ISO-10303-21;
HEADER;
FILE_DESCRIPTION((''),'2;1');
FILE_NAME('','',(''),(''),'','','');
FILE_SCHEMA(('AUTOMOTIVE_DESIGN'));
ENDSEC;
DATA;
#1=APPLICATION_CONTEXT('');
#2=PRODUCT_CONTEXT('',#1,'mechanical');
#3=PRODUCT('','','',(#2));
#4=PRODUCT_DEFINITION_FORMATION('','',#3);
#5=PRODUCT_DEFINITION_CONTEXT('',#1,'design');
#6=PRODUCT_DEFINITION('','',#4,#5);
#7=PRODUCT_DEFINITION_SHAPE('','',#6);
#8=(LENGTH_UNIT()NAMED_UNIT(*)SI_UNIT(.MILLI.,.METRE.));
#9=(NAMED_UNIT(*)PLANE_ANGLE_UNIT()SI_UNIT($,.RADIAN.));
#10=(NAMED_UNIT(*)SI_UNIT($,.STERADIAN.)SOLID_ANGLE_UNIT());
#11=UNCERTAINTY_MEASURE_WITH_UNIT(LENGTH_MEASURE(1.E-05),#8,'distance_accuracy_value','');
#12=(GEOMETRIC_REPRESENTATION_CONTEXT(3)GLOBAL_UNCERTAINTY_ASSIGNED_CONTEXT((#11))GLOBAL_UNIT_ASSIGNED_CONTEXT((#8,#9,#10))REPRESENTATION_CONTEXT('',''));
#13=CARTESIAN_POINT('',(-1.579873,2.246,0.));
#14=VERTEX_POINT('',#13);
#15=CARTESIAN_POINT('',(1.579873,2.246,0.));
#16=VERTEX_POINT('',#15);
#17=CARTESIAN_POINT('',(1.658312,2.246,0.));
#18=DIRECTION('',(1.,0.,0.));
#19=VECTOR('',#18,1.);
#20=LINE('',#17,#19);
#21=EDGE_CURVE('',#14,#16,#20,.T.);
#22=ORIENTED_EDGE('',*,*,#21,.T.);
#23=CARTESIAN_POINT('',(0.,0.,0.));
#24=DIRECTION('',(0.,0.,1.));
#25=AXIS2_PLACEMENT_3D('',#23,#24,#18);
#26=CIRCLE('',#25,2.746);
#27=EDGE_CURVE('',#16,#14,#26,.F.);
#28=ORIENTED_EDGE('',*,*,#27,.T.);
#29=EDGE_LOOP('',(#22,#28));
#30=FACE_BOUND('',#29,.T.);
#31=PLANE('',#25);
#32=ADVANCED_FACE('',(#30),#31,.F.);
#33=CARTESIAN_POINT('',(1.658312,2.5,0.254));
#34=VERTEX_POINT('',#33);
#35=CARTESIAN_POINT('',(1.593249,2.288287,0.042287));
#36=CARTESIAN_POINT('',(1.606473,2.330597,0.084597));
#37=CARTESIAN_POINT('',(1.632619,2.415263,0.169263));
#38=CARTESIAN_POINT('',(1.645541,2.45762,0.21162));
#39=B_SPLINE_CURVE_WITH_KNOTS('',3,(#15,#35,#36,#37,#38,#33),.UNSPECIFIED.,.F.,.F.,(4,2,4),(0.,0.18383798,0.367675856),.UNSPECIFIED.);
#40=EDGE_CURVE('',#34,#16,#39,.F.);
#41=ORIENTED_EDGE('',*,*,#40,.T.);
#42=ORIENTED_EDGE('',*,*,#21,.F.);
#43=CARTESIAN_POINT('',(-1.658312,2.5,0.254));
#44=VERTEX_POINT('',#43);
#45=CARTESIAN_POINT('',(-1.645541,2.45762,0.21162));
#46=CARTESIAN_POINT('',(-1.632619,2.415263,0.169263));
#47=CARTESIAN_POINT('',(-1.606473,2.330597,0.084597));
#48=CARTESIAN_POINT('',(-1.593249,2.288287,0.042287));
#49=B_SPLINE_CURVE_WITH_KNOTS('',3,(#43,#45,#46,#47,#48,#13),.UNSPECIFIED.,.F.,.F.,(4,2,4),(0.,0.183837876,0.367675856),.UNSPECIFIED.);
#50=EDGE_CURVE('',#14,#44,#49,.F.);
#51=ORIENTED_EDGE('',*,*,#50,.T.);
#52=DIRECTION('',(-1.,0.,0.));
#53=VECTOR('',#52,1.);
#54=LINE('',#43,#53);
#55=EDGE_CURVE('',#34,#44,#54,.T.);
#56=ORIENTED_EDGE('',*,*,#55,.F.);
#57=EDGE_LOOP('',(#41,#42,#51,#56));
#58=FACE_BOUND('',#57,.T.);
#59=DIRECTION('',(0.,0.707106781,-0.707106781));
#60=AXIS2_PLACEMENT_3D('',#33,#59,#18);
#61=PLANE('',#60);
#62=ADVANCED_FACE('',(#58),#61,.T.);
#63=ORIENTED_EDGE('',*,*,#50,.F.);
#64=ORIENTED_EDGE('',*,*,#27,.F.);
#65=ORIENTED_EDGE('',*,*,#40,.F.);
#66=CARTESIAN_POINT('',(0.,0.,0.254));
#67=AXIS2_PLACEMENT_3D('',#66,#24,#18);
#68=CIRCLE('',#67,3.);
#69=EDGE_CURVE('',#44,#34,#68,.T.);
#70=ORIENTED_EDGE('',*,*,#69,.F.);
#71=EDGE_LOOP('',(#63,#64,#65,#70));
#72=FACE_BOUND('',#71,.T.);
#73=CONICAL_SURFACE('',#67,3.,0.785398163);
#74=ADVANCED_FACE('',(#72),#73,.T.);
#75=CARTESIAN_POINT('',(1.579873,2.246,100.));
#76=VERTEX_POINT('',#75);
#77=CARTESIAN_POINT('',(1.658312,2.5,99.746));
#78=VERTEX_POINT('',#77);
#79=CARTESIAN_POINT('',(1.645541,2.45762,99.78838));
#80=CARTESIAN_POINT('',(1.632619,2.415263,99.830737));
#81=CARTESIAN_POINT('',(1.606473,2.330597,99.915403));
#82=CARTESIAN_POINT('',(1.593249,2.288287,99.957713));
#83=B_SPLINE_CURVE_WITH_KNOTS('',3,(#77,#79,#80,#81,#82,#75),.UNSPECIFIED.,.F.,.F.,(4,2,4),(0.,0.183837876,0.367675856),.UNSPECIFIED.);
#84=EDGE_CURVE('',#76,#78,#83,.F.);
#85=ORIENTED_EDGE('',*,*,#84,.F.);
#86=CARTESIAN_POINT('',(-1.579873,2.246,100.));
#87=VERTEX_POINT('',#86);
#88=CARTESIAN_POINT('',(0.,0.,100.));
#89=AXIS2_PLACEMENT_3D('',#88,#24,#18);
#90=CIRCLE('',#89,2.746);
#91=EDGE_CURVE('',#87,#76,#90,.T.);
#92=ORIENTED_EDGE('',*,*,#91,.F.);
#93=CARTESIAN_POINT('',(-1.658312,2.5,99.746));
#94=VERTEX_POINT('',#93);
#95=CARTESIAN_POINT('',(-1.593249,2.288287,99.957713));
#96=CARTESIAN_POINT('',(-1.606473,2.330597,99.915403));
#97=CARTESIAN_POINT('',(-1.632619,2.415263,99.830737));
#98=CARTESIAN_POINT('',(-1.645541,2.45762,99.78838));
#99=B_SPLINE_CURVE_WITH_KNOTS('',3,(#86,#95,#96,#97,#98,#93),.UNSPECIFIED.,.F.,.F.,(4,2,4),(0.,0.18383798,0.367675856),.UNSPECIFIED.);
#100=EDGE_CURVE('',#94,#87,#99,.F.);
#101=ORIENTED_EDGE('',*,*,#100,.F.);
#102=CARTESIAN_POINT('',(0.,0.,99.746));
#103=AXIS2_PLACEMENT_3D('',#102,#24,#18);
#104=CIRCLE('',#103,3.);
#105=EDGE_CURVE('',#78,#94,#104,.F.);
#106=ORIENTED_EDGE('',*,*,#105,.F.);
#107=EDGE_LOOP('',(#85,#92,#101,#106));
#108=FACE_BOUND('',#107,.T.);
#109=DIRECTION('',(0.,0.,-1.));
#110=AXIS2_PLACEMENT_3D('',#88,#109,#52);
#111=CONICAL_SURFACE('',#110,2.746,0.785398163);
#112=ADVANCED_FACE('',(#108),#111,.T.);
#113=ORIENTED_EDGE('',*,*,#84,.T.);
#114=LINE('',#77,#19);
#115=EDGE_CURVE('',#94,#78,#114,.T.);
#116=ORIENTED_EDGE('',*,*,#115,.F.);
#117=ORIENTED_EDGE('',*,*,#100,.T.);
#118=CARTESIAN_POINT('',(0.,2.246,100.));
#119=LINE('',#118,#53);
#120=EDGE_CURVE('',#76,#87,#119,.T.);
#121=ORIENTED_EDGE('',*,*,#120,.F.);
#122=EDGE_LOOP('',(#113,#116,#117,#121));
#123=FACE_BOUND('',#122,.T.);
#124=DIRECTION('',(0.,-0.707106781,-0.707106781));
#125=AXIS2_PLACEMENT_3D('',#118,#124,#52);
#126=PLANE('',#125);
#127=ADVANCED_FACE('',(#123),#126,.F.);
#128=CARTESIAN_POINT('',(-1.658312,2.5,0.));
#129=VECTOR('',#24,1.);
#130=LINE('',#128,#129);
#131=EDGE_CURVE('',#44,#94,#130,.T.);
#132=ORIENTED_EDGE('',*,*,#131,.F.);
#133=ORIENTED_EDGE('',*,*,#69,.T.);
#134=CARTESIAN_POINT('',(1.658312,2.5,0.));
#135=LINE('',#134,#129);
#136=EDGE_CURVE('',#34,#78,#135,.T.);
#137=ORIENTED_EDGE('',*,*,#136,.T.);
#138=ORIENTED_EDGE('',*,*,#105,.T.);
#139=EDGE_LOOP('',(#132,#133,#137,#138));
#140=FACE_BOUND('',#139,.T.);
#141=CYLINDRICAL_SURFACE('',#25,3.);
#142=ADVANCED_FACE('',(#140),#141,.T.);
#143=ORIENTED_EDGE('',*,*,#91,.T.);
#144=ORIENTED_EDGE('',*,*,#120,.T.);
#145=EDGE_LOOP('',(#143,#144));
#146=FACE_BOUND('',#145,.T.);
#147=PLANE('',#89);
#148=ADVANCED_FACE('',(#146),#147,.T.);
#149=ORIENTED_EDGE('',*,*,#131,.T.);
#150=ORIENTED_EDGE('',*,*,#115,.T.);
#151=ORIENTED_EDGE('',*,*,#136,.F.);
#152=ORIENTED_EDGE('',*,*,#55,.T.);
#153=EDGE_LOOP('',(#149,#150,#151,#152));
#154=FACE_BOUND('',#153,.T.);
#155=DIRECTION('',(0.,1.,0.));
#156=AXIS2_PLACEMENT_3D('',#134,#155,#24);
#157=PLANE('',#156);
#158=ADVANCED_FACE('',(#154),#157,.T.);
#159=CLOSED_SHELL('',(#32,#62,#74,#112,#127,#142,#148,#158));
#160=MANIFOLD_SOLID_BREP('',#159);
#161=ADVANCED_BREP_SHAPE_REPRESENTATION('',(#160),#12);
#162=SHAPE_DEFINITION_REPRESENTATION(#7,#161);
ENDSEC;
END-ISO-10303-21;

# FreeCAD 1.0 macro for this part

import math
import FreeCAD as App
import Part
import Sketcher

V = App.Vector
Q = App.Units.Quantity


def edges_at(feature, points):
    """Names of the edges that pass closest to the given points."""
    edges = feature.Shape.Edges
    near = lambda p: min(range(len(edges)), key=lambda i: edges[i].distToShape(Part.Vertex(*p))[0])
    return sorted({f"Edge{near(p) + 1}" for p in points})

doc = App.newDocument("Part")
params = doc.addObject("Spreadsheet::Sheet", "Params")
for row, (alias, value) in enumerate([
    ("sketch1_radius", "3 mm"),
    ("pad1_length", "100 mm"),
    ("chamfer_size", "0.254 mm"),
], start=1):
    params.set(f"A{row}", alias)
    params.set(f"B{row}", "=" + value)
    params.setAlias(f"B{row}", alias)

body = doc.addObject("PartDesign::Body", "Body")

# Sketch on XY plane
sketch1 = doc.addObject("Sketcher::SketchObject", "Sketch")
body.addObject(sketch1)
sketch1.AttachmentSupport = (doc.XY_Plane, [""])
sketch1.MapMode = "FlatFace"
sketch1.AttachmentOffset = App.Placement(V(0, 0, 100), App.Rotation())
sketch1.addGeometry([
    Part.LineSegment(V(1.7, 2.5, 0), V(-1.7, 2.5, 0)),
    Part.ArcOfCircle(Part.Circle(V(0, 0, 0), V(0, 0, 1), 3), math.radians(124), math.radians(416)),
], False)
sketch1.addConstraint([
    Sketcher.Constraint("Coincident", 0, 1, 1, 2),
    Sketcher.Constraint("Coincident", 1, 1, 0, 2),
    Sketcher.Constraint("Horizontal", 0),
    Sketcher.Constraint("Coincident", 1, 3, -1, 1),
    Sketcher.Constraint("Radius", 1, Q("3 mm")),
    Sketcher.Constraint("DistanceY", -1, 1, 0, 1, Q("2.5 mm")),
])
sketch1.setExpression("Constraints[4]", "Params.sketch1_radius")
pad1 = doc.addObject("PartDesign::Pad", "Pad")
body.addObject(pad1)
pad1.Profile = sketch1
pad1.setExpression("Length", "Params.pad1_length")
pad1.Reversed = True
doc.recompute()

chamfer = doc.addObject("PartDesign::Chamfer", "Chamfer")
body.addObject(chamfer)
chamfer.Base = (pad1, edges_at(pad1, [
    (0, 2.5, 100),
    (0, -3, 100),
    (0, -3, 0),
    (0, 2.5, 0),
]))
chamfer.setExpression("Size", "Params.chamfer_size")

doc.recompute()
